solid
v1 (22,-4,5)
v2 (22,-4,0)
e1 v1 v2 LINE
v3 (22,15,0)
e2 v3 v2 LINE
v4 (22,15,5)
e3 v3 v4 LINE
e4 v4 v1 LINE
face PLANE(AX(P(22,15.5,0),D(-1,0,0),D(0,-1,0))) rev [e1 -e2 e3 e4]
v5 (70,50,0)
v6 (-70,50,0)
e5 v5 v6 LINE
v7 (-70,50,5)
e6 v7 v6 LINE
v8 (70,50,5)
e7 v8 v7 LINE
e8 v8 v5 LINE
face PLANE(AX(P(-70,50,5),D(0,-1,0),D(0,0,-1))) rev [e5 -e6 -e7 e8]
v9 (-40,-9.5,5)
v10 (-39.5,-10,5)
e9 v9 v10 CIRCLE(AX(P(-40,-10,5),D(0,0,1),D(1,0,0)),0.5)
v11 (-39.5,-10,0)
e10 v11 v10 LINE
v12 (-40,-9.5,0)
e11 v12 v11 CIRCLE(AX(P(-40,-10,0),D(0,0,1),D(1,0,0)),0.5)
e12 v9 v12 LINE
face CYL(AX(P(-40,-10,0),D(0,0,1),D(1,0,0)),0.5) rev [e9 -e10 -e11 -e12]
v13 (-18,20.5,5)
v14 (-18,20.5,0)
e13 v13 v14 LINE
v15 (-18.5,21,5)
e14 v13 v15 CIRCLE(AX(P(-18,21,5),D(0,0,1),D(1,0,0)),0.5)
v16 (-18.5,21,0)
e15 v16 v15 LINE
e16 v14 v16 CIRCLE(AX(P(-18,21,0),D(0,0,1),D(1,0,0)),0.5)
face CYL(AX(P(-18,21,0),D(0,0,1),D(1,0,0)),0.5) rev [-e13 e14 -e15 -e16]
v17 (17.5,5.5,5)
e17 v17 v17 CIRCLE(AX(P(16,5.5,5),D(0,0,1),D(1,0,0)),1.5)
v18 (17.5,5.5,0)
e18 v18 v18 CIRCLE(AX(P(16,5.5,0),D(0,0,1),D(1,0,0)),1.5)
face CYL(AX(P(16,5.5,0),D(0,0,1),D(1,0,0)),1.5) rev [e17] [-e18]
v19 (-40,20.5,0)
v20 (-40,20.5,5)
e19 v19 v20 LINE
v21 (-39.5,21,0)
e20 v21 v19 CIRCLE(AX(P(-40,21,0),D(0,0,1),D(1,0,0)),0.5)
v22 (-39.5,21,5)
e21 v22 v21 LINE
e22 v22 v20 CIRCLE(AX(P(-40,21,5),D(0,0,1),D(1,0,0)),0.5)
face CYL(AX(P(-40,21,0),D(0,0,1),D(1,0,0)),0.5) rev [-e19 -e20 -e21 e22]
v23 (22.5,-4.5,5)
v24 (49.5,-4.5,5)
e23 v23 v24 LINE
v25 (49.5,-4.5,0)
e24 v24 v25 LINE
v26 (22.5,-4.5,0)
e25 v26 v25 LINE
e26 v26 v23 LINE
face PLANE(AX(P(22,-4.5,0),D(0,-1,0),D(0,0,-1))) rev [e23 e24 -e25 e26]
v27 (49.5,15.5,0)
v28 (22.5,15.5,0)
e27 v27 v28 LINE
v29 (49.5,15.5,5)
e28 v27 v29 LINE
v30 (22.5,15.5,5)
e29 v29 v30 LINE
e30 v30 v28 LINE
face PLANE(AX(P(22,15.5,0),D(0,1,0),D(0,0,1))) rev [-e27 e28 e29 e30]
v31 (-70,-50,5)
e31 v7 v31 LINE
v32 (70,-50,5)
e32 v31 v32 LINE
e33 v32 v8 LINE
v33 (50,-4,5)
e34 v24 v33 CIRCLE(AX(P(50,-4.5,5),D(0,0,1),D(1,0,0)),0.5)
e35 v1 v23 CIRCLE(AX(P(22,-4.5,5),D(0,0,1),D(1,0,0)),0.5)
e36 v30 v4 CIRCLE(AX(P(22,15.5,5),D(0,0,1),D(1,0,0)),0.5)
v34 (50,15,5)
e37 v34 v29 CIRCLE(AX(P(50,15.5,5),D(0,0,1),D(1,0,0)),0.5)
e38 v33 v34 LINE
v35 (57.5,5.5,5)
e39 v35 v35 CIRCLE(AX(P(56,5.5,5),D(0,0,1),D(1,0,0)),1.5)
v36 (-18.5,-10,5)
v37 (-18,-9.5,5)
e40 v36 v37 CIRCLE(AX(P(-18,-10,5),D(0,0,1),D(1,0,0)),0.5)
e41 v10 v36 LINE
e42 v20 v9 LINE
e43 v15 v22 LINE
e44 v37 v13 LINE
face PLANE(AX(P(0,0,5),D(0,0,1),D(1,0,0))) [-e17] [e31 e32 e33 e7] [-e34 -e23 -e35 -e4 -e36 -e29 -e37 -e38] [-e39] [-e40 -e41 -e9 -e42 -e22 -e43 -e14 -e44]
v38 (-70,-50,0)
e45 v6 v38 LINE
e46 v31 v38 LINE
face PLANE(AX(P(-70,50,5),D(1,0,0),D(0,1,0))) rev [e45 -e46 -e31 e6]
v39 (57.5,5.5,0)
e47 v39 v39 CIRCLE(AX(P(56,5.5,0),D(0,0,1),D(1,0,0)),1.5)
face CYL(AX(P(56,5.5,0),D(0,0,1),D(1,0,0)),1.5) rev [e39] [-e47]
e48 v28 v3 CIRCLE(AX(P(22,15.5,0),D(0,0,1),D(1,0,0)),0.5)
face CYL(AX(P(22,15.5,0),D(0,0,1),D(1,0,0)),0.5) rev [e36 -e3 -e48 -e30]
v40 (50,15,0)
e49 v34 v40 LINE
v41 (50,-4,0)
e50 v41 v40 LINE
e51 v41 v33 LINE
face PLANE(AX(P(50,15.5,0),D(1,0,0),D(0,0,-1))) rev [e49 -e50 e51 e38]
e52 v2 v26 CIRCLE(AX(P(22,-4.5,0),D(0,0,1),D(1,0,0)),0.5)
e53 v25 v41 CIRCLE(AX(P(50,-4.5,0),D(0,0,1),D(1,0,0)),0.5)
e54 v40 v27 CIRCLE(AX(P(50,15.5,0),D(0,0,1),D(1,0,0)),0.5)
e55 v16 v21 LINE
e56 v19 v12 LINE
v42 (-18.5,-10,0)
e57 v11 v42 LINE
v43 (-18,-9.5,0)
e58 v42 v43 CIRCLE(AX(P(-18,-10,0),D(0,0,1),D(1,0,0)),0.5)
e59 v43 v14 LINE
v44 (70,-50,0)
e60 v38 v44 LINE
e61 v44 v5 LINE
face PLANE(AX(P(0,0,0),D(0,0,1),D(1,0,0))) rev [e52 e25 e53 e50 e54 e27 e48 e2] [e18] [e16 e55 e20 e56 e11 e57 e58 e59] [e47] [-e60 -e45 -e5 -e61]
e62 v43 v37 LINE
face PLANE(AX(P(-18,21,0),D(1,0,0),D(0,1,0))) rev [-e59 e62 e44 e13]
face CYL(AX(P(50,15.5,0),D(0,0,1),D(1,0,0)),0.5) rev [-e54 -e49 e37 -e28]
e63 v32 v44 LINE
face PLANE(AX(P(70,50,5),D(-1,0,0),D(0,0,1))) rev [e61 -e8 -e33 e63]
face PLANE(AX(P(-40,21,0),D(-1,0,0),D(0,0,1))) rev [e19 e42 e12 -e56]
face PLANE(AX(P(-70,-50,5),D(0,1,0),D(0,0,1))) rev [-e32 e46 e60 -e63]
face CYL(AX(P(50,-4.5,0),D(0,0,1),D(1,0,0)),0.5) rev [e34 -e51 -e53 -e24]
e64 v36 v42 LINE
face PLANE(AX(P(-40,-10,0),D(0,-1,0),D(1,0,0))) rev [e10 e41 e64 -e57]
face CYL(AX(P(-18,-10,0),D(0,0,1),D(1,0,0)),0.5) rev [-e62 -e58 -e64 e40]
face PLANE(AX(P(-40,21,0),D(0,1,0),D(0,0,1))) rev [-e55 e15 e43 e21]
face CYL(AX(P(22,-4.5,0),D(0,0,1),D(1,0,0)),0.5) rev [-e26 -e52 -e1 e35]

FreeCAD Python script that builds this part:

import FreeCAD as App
import Part
import Sketcher

V = App.Vector
Q = App.Units.Quantity


def add_polygon(sketch, points):
    """Adds a closed chain of lines whose ends are joined by coincident constraints."""
    first, n = sketch.GeometryCount, len(points)
    for a, b in zip(points, points[1:] + points[:1]):
        sketch.addGeometry(Part.LineSegment(App.Vector(*a, 0), App.Vector(*b, 0)), False)
    for i in range(n):
        sketch.addConstraint(Sketcher.Constraint("Coincident", first + i, 2, first + (i + 1) % n, 1))

doc = App.newDocument("Part")
body = doc.addObject("PartDesign::Body", "Body")

# Sketch on XY plane
sketch1 = body.newObject("Sketcher::SketchObject", "Sketch")
sketch1.AttachmentSupport = (doc.getObject("XY_Plane"), [""])
sketch1.MapMode = "FlatFace"
add_polygon(sketch1, [(-70, 50), (-70, -50), (70, -50), (70, 50)])  # lines 0-3
sketch1.addConstraint([
    Sketcher.Constraint("Vertical", 0),
    Sketcher.Constraint("Horizontal", 1),
    Sketcher.Constraint("Vertical", 2),
    Sketcher.Constraint("Horizontal", 3),
    Sketcher.Constraint("Symmetric", 0, 2, 2, 2, -1, 1),
    Sketcher.Constraint("DistanceX", 1, 1, 1, 2, Q("140 mm")),
    Sketcher.Constraint("DistanceY", 0, 2, 0, 1, Q("100 mm")),
])
pad1 = body.newObject("PartDesign::Pad", "Pad")
pad1.Profile = sketch1
pad1.Length = 5

# Sketch on XY plane
sketch2 = body.newObject("Sketcher::SketchObject", "Sketch001")
sketch2.AttachmentSupport = (doc.getObject("XY_Plane"), [""])
sketch2.MapMode = "FlatFace"
sketch2.AttachmentOffset = App.Placement(V(0, 0, 5), App.Rotation())
add_polygon(sketch2, [(-40, 21), (-40, -10), (-18, -10), (-18, 21)])  # lines 0-3
sketch2.addConstraint([
    Sketcher.Constraint("Vertical", 0),
    Sketcher.Constraint("Horizontal", 1),
    Sketcher.Constraint("Vertical", 2),
    Sketcher.Constraint("Horizontal", 3),
    Sketcher.Constraint("DistanceX", 1, 1, 1, 2, Q("22 mm")),
    Sketcher.Constraint("DistanceY", 0, 2, 0, 1, Q("31 mm")),
    Sketcher.Constraint("DistanceX", 0, 2, -1, 1, Q("40 mm")),
    Sketcher.Constraint("DistanceY", 0, 2, -1, 1, Q("10 mm")),
])
pocket1 = body.newObject("PartDesign::Pocket", "Pocket")
pocket1.Profile = sketch2
pocket1.Type = "ThroughAll"

# Sketch on XY plane
sketch3 = body.newObject("Sketcher::SketchObject", "Sketch002")
sketch3.AttachmentSupport = (doc.getObject("XY_Plane"), [""])
sketch3.MapMode = "FlatFace"
sketch3.AttachmentOffset = App.Placement(V(0, 0, 5), App.Rotation())
sketch3.addGeometry(Part.Circle(V(16, 5.5, 0), V(0, 0, 1), 1.5), False)  # 0
sketch3.addGeometry(Part.Circle(V(56, 5.5, 0), V(0, 0, 1), 1.5), False)  # 1
add_polygon(sketch3, [(22, 15.5), (22, -4.5), (50, -4.5), (50, 15.5)])  # lines 2-5
sketch3.addConstraint([
    Sketcher.Constraint("Vertical", 2),
    Sketcher.Constraint("Horizontal", 3),
    Sketcher.Constraint("Vertical", 4),
    Sketcher.Constraint("Horizontal", 5),
    Sketcher.Constraint("Equal", 0, 1),
    Sketcher.Constraint("Horizontal", 0, 3, 1, 3),
    Sketcher.Constraint("Diameter", 0, Q("3 mm")),
    Sketcher.Constraint("DistanceX", 3, 1, 3, 2, Q("28 mm")),
    Sketcher.Constraint("DistanceY", 2, 2, 2, 1, Q("20 mm")),
    Sketcher.Constraint("DistanceX", -1, 1, 0, 3, Q("16 mm")),
    Sketcher.Constraint("DistanceX", -1, 1, 1, 3, Q("56 mm")),
    Sketcher.Constraint("DistanceX", -1, 1, 2, 2, Q("22 mm")),
    Sketcher.Constraint("DistanceY", 2, 2, 0, 3, Q("10 mm")),
    Sketcher.Constraint("DistanceY", -1, 1, 0, 3, Q("5.5 mm")),
])
pocket2 = body.newObject("PartDesign::Pocket", "Pocket001")
pocket2.Profile = sketch3
pocket2.Type = "ThroughAll"

# Sketch on XY plane
sketch4 = body.newObject("Sketcher::SketchObject", "Sketch003")
sketch4.AttachmentSupport = (doc.getObject("XY_Plane"), [""])
sketch4.MapMode = "FlatFace"
sketch4.AttachmentOffset = App.Placement(V(0, 0, 5), App.Rotation())
sketch4.addGeometry([
    Part.Circle(V(-40, 21, 0), V(0, 0, 1), 0.5),  # 0
    Part.Circle(V(-18, 21, 0), V(0, 0, 1), 0.5),  # 1
    Part.Circle(V(-18, -10, 0), V(0, 0, 1), 0.5),  # 2
    Part.Circle(V(-40, -10, 0), V(0, 0, 1), 0.5),  # 3
    Part.Circle(V(22, 15.5, 0), V(0, 0, 1), 0.5),  # 4
    Part.Circle(V(50, 15.5, 0), V(0, 0, 1), 0.5),  # 5
    Part.Circle(V(50, -4.5, 0), V(0, 0, 1), 0.5),  # 6
    Part.Circle(V(22, -4.5, 0), V(0, 0, 1), 0.5),  # 7
], False)
sketch4.addConstraint([
    Sketcher.Constraint("Equal", 0, 1),
    Sketcher.Constraint("Equal", 1, 2),
    Sketcher.Constraint("Equal", 2, 3),
    Sketcher.Constraint("Equal", 3, 4),
    Sketcher.Constraint("Equal", 4, 5),
    Sketcher.Constraint("Equal", 5, 6),
    Sketcher.Constraint("Equal", 6, 7),
    Sketcher.Constraint("Horizontal", 0, 3, 1, 3),
    Sketcher.Constraint("Horizontal", 2, 3, 3, 3),
    Sketcher.Constraint("Horizontal", 4, 3, 5, 3),
    Sketcher.Constraint("Horizontal", 6, 3, 7, 3),
    Sketcher.Constraint("Vertical", 1, 3, 2, 3),
    Sketcher.Constraint("Vertical", 0, 3, 3, 3),
    Sketcher.Constraint("Vertical", 5, 3, 6, 3),
    Sketcher.Constraint("Vertical", 4, 3, 7, 3),
    Sketcher.Constraint("Diameter", 0, Q("1 mm")),
    Sketcher.Constraint("DistanceX", 0, 3, -1, 1, Q("40 mm")),
    Sketcher.Constraint("DistanceY", -1, 1, 0, 3, Q("21 mm")),
    Sketcher.Constraint("DistanceX", 1, 3, -1, 1, Q("18 mm")),
    Sketcher.Constraint("DistanceY", 2, 3, -1, 1, Q("10 mm")),
    Sketcher.Constraint("DistanceX", -1, 1, 4, 3, Q("22 mm")),
    Sketcher.Constraint("DistanceX", -1, 1, 5, 3, Q("50 mm")),
    Sketcher.Constraint("DistanceY", 6, 3, 5, 3, Q("20 mm")),
    Sketcher.Constraint("DistanceY", -1, 1, 4, 3, Q("15.5 mm")),
])
pocket3 = body.newObject("PartDesign::Pocket", "Pocket002")
pocket3.Profile = sketch4
pocket3.Type = "ThroughAll"

doc.recompute()
